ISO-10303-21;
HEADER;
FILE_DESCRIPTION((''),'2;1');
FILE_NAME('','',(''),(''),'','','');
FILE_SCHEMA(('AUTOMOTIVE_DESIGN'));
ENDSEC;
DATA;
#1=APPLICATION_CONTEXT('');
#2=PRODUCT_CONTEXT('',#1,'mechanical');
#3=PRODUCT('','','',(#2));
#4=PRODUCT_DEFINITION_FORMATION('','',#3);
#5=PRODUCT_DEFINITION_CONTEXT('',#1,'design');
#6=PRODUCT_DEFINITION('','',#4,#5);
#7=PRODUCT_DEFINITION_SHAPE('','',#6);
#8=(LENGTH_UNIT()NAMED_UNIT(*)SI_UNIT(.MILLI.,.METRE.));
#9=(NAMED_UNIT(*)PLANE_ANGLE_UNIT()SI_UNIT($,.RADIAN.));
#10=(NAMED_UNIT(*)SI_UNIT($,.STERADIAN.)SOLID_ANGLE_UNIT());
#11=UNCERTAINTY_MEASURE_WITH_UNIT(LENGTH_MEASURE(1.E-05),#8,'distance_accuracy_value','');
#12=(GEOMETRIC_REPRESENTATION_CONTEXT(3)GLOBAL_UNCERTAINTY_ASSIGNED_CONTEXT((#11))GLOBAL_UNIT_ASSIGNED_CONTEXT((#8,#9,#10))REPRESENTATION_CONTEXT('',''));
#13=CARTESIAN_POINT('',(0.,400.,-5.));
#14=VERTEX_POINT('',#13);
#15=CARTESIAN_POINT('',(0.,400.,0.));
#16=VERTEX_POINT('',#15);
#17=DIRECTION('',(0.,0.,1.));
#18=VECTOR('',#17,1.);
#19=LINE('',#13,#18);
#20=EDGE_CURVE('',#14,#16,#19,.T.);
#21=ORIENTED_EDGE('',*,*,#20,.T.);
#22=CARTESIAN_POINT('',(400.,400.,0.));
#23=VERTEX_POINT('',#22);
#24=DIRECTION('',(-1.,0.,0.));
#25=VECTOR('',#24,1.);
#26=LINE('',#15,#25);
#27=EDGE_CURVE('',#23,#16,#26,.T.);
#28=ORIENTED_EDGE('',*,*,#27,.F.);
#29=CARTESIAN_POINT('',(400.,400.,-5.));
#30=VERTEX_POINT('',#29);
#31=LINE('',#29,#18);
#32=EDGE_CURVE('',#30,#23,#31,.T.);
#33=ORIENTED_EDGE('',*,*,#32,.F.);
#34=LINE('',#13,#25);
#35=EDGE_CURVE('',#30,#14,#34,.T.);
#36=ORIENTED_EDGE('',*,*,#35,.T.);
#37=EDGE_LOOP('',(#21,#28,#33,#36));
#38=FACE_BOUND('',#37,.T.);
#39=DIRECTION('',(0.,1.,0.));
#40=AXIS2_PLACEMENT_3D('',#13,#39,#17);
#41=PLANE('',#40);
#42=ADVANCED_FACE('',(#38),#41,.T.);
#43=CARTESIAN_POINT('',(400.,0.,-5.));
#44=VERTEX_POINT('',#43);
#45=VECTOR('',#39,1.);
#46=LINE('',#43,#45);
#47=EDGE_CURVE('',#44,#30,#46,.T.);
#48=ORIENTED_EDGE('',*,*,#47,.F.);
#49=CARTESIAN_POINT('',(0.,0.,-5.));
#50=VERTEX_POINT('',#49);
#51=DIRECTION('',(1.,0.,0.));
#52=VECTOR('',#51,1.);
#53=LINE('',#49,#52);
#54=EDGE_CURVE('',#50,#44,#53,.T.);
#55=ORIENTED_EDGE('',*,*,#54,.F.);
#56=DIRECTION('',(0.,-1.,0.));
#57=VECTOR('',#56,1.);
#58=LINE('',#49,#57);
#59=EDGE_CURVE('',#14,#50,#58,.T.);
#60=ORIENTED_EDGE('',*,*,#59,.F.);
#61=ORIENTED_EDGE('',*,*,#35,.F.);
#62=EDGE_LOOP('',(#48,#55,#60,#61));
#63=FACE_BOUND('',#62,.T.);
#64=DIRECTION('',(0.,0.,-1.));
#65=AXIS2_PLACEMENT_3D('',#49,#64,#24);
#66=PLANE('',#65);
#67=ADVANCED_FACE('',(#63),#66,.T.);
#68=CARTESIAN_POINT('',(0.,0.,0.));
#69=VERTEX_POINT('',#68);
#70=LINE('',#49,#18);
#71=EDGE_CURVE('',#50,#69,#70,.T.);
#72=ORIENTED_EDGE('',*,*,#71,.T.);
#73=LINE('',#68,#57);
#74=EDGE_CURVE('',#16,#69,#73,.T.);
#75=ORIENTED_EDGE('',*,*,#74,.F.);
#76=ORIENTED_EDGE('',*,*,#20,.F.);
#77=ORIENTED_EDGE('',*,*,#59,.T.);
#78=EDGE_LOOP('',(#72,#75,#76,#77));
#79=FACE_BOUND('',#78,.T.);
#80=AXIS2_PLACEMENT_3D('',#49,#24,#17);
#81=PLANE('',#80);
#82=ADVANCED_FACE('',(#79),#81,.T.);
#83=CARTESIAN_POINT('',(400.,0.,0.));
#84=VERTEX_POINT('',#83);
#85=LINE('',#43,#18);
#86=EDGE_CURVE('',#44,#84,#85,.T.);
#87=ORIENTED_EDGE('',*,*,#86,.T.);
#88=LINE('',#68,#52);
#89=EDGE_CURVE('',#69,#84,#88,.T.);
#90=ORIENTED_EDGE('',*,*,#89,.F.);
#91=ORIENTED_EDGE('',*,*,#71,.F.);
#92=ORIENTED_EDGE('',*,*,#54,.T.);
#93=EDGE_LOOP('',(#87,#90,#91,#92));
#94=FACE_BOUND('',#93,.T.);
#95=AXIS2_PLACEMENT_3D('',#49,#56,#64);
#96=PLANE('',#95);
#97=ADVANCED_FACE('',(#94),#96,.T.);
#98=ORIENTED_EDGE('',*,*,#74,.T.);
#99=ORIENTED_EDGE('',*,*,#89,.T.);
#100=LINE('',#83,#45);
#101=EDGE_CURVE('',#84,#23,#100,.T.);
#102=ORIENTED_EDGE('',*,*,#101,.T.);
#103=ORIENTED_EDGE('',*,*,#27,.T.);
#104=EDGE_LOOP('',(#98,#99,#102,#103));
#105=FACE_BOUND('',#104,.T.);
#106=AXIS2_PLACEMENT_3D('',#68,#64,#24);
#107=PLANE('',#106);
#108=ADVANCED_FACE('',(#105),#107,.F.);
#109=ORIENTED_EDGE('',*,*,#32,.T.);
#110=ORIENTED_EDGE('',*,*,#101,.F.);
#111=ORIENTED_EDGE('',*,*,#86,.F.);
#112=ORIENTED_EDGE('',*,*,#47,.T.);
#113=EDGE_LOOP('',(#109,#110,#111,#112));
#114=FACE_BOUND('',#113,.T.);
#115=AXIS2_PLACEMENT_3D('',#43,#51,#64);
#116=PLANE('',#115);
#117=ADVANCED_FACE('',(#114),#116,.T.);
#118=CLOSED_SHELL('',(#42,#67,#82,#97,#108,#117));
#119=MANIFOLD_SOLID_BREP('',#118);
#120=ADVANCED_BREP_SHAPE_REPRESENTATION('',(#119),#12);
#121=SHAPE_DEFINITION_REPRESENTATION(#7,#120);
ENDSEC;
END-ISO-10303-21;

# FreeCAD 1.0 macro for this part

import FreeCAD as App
import Part
import Sketcher
from FreeCAD import Vector
Q = App.Units.Quantity

doc = App.newDocument("Part")
body = doc.addObject("PartDesign::Body", "Body")

sketch1 = body.newObject("Sketcher::SketchObject", "Sketch")
sketch1.AttachmentSupport = (doc.getObject("XY_Plane"), [""])
sketch1.MapMode = "FlatFace"
sketch1.addGeometry([
    Part.LineSegment(Vector(0, 400, 0), Vector(0, 0, 0)),
    Part.LineSegment(Vector(0, 0, 0), Vector(400, 0, 0)),
    Part.LineSegment(Vector(400, 0, 0), Vector(400, 400, 0)),
    Part.LineSegment(Vector(400, 400, 0), Vector(0, 400, 0)),
], False)
sketch1.addConstraint([
    Sketcher.Constraint("Coincident", 0, 2, 1, 1),
    Sketcher.Constraint("Coincident", 1, 2, 2, 1),
    Sketcher.Constraint("Coincident", 2, 2, 3, 1),
    Sketcher.Constraint("Coincident", 3, 2, 0, 1),
    Sketcher.Constraint("Vertical", 0),
    Sketcher.Constraint("Horizontal", 1),
    Sketcher.Constraint("Vertical", 2),
    Sketcher.Constraint("Horizontal", 3),
    Sketcher.Constraint("Coincident", 0, 2, -1, 1),
    Sketcher.Constraint("Equal", 3, 0),
    Sketcher.Constraint("DistanceX", 1, 1, 1, 2, Q("400 mm")),
])
pad1 = body.newObject("PartDesign::Pad", "Pad")
pad1.Profile = sketch1
pad1.Length = 5
pad1.Reversed = True

doc.recompute()
